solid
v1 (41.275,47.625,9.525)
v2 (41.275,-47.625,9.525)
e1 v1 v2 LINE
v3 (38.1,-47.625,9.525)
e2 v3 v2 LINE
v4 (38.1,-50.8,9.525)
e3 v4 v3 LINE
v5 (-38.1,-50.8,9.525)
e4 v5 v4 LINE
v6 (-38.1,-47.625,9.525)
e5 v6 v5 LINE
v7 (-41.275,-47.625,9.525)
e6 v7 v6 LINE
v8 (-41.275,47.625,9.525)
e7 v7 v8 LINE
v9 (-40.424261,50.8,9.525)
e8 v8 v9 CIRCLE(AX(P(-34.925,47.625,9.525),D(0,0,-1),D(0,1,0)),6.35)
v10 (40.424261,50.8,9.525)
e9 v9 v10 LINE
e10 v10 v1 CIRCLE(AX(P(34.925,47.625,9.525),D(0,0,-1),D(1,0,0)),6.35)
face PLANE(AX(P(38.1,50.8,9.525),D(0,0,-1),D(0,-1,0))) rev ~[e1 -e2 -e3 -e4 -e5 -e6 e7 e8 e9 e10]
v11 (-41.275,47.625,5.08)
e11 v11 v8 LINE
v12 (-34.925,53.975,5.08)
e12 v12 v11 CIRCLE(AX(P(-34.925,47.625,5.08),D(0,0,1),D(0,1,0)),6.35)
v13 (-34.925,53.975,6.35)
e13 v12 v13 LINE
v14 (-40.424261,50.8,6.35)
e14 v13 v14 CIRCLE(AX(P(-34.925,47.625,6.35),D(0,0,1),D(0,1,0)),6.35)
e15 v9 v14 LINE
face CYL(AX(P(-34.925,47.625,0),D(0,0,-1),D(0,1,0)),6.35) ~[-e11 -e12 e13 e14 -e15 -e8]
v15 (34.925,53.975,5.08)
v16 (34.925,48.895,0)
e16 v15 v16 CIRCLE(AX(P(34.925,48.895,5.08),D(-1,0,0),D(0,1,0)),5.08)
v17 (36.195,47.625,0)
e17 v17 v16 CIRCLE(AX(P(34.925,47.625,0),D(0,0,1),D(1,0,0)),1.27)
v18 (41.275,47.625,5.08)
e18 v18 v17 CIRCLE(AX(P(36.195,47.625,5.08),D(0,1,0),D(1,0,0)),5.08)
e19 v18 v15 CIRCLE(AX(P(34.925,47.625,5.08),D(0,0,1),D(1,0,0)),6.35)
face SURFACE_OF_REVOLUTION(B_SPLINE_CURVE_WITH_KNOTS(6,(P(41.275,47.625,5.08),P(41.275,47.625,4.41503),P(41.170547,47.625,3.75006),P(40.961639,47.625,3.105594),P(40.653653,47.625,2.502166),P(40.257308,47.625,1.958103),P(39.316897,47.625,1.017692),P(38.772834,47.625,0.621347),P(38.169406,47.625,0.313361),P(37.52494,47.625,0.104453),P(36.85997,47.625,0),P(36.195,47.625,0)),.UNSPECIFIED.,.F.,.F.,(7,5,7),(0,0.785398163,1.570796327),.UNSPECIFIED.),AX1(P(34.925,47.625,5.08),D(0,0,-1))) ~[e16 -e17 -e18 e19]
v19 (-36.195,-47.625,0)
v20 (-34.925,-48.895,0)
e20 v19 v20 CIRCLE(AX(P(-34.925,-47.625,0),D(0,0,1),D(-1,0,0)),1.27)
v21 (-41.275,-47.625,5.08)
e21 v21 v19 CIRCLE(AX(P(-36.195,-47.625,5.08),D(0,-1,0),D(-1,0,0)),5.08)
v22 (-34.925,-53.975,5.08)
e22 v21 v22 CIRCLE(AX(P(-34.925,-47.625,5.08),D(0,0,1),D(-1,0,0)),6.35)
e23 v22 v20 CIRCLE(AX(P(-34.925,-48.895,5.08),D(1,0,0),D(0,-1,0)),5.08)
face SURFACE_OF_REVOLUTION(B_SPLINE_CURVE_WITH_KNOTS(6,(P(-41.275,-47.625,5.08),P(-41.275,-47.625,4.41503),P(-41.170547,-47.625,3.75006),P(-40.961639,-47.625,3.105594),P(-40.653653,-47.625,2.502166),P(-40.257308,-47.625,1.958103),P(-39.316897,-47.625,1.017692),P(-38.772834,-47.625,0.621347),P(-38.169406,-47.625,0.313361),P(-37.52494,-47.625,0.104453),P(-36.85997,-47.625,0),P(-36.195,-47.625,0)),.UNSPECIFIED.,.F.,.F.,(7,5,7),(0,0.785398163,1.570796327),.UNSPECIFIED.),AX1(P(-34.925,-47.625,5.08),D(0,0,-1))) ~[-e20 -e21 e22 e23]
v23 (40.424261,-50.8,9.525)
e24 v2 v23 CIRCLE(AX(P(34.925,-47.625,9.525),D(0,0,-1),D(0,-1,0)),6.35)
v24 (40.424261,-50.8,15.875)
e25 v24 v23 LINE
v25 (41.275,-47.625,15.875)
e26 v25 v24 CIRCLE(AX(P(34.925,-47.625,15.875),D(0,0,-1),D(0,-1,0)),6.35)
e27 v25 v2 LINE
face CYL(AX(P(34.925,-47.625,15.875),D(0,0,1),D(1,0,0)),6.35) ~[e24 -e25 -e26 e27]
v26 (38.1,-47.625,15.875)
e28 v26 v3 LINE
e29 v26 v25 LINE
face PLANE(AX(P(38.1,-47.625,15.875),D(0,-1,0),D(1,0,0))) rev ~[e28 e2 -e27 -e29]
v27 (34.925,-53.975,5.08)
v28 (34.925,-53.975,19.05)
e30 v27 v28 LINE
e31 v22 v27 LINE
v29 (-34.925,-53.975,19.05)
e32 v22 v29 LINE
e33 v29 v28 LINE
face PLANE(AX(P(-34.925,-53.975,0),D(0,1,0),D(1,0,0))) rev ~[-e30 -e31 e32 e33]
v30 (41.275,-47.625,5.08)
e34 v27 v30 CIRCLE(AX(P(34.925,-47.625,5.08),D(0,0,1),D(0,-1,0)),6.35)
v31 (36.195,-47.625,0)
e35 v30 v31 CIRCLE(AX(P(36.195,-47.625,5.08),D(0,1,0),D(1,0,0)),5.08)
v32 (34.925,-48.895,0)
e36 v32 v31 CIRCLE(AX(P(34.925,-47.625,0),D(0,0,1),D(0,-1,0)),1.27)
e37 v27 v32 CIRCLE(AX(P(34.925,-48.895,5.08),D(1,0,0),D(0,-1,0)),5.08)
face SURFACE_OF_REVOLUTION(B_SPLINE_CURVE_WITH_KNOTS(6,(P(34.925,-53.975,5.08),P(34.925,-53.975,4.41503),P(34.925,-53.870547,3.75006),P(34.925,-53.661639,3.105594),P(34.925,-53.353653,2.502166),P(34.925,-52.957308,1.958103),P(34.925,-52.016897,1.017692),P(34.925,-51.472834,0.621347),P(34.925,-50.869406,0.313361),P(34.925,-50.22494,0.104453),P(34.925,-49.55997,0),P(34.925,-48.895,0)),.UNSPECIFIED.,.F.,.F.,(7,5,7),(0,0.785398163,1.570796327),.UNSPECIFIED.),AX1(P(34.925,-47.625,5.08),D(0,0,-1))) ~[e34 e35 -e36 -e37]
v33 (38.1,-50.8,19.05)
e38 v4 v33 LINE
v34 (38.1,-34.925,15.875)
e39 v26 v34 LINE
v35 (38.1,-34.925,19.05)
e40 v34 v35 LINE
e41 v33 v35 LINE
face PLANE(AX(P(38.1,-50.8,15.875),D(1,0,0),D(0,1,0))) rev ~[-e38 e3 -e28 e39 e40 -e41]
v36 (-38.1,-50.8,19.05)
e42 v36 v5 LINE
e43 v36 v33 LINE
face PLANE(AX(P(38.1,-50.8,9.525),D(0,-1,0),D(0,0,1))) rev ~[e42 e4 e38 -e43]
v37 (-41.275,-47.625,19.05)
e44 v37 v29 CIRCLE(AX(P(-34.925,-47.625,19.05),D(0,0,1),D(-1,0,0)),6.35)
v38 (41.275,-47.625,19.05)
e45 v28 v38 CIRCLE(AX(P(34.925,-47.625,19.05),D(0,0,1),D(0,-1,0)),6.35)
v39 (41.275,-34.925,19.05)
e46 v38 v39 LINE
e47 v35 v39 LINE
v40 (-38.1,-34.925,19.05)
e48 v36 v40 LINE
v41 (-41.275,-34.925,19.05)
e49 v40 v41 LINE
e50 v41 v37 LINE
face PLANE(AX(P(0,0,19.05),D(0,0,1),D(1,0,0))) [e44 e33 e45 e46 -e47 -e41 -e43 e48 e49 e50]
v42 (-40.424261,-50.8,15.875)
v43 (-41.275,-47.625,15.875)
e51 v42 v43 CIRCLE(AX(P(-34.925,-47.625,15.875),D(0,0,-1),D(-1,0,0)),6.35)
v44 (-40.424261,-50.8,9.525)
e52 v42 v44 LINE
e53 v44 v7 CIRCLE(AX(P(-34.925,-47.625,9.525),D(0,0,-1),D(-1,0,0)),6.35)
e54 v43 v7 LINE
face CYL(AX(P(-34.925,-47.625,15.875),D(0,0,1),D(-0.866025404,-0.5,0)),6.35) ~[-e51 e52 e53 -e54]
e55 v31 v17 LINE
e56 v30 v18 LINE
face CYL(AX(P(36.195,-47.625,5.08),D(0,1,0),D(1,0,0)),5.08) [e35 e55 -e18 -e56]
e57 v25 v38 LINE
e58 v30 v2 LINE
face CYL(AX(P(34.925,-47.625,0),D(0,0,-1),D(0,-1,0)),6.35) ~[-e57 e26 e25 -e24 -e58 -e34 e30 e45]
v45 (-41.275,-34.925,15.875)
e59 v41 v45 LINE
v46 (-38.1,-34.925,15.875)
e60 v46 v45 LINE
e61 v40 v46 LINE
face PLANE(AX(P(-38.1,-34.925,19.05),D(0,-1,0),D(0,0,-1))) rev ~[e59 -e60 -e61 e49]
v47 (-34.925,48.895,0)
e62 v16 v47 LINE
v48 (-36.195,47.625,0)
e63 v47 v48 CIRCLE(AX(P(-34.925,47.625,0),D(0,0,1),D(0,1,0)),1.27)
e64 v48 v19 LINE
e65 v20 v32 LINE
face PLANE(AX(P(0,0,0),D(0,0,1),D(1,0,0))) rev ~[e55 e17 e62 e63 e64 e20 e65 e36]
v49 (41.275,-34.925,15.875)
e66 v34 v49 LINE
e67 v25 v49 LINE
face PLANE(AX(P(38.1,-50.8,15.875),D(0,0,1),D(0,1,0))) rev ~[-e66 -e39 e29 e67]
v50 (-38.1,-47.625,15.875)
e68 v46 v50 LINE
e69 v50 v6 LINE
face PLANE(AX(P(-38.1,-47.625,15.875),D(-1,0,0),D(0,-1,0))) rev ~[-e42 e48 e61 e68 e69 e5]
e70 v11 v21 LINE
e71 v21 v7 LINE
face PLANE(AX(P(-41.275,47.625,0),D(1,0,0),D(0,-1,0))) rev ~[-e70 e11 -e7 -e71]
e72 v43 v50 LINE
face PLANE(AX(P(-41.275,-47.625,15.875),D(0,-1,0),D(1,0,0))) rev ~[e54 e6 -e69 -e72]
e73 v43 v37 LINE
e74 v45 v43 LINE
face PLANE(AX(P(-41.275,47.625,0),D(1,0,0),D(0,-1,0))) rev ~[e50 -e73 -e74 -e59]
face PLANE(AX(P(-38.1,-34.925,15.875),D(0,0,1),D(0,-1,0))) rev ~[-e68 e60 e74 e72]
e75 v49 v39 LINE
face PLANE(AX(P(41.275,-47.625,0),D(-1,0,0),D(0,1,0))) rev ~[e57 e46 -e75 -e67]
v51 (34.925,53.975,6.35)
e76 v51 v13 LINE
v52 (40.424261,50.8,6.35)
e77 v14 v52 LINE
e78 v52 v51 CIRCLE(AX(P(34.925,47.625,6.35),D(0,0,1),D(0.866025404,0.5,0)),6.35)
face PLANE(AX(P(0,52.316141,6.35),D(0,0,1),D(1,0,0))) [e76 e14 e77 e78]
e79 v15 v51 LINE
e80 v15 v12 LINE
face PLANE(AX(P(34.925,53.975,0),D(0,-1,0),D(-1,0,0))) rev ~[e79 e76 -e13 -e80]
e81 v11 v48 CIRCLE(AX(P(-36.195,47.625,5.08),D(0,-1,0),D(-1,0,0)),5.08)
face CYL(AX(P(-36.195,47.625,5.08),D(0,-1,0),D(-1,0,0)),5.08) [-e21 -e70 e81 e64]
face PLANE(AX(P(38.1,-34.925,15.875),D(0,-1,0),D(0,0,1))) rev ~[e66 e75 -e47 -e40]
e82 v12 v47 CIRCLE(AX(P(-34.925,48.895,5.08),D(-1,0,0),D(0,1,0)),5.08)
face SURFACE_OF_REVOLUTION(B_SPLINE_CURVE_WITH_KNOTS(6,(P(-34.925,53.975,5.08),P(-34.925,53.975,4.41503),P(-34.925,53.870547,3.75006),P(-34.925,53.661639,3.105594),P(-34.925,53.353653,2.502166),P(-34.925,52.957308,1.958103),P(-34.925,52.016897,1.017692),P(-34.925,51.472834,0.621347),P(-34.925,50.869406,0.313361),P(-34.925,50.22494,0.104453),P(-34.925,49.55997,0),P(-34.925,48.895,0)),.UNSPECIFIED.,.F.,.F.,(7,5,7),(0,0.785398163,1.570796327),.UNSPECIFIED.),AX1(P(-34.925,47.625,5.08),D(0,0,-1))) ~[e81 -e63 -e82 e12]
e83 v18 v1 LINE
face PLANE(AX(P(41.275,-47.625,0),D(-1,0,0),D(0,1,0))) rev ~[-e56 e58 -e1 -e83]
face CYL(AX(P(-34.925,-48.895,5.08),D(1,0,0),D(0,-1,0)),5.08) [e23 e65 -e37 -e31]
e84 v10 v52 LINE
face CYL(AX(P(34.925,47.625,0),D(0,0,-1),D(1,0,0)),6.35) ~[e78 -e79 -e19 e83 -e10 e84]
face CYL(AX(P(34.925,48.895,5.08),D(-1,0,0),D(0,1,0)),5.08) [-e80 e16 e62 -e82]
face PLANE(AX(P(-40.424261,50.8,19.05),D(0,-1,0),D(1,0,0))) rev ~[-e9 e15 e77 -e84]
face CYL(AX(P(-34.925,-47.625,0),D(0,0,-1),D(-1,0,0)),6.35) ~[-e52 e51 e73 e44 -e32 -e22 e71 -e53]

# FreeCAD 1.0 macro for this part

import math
import FreeCAD as App
import Part
import Sketcher

V = App.Vector
Q = App.Units.Quantity


def edges_at(feature, points):
    """Names of the edges that pass closest to the given points."""
    edges = feature.Shape.Edges
    near = lambda p: min(range(len(edges)), key=lambda i: edges[i].distToShape(Part.Vertex(*p))[0])
    return sorted({f"Edge{near(p) + 1}" for p in points})

doc = App.newDocument("Part")
body = doc.addObject("PartDesign::Body", "Body")

# Sketch on XY plane
sketch1 = body.newObject("Sketcher::SketchObject", "Sketch")
sketch1.AttachmentSupport = (doc.getObject("XY_Plane"), [""])
sketch1.MapMode = "FlatFace"
sketch1.addGeometry(Part.ArcOfCircle(Part.Circle(V(35, 48, 0), V(0, 0, 1), 6), math.radians(0), math.radians(90)), False)
sketch1.addGeometry(Part.LineSegment(V(35, 54, 0), V(-35, 54, 0)), False)
sketch1.addGeometry(Part.ArcOfCircle(Part.Circle(V(-35, 48, 0), V(0, 0, 1), 6), math.radians(90), math.radians(180)), False)
sketch1.addGeometry(Part.LineSegment(V(-41, 48, 0), V(-41, -48, 0)), False)
sketch1.addGeometry(Part.ArcOfCircle(Part.Circle(V(-35, -48, 0), V(0, 0, 1), 6), math.radians(180), math.radians(270)), False)
sketch1.addGeometry(Part.LineSegment(V(-35, -54, 0), V(35, -54, 0)), False)
sketch1.addGeometry(Part.ArcOfCircle(Part.Circle(V(35, -48, 0), V(0, 0, 1), 6), math.radians(-90), math.radians(0)), False)
sketch1.addGeometry(Part.LineSegment(V(41, -48, 0), V(41, 48, 0)), False)
sketch1.addConstraint(Sketcher.Constraint("Tangent", 0, 2, 1, 1))
sketch1.addConstraint(Sketcher.Constraint("Tangent", 1, 2, 2, 1))
sketch1.addConstraint(Sketcher.Constraint("Tangent", 2, 2, 3, 1))
sketch1.addConstraint(Sketcher.Constraint("Tangent", 3, 2, 4, 1))
sketch1.addConstraint(Sketcher.Constraint("Tangent", 4, 2, 5, 1))
sketch1.addConstraint(Sketcher.Constraint("Tangent", 5, 2, 6, 1))
sketch1.addConstraint(Sketcher.Constraint("Tangent", 6, 2, 7, 1))
sketch1.addConstraint(Sketcher.Constraint("Tangent", 7, 2, 0, 1))
sketch1.addConstraint(Sketcher.Constraint("Horizontal", 1))
sketch1.addConstraint(Sketcher.Constraint("Vertical", 3))
sketch1.addConstraint(Sketcher.Constraint("Horizontal", 5))
sketch1.addConstraint(Sketcher.Constraint("Vertical", 7))
sketch1.addConstraint(Sketcher.Constraint("Equal", 0, 2))
sketch1.addConstraint(Sketcher.Constraint("Equal", 2, 4))
sketch1.addConstraint(Sketcher.Constraint("Equal", 4, 6))
sketch1.addConstraint(Sketcher.Constraint("Symmetric", 0, 3, 4, 3, -1, 1))
sketch1.addConstraint(Sketcher.Constraint("Radius", 0, Q("0.25 in")))
sketch1.addConstraint(Sketcher.Constraint("DistanceY", 6, 3, 0, 2, Q("4 in")))
sketch1.addConstraint(Sketcher.Constraint("DistanceX", 2, 2, 0, 3, Q("3 in")))
pad1 = body.newObject("PartDesign::Pad", "Pad")
pad1.Profile = sketch1
pad1.Length = Q("0.75 in")
doc.recompute()

fillet = body.newObject("PartDesign::Fillet", "Fillet")
fillet.Base = (pad1, edges_at(pad1, [(0, -53.975, 0)]))
fillet.Radius = Q("0.2 in")

# Sketch on XY plane
sketch2 = body.newObject("Sketcher::SketchObject", "Sketch001")
sketch2.AttachmentSupport = (doc.getObject("XY_Plane"), [""])
sketch2.MapMode = "FlatFace"
sketch2.AttachmentOffset = App.Placement(V(0, 0, 0.75 * 25.4), App.Rotation())
sketch2.addGeometry(Part.LineSegment(V(-38, 51, 0), V(-38, -51, 0)), False)
sketch2.addGeometry(Part.LineSegment(V(-38, -51, 0), V(38, -51, 0)), False)
sketch2.addGeometry(Part.LineSegment(V(38, -51, 0), V(38, 51, 0)), False)
sketch2.addGeometry(Part.LineSegment(V(38, 51, 0), V(-38, 51, 0)), False)
sketch2.addConstraint(Sketcher.Constraint("Coincident", 0, 2, 1, 1))
sketch2.addConstraint(Sketcher.Constraint("Coincident", 1, 2, 2, 1))
sketch2.addConstraint(Sketcher.Constraint("Coincident", 2, 2, 3, 1))
sketch2.addConstraint(Sketcher.Constraint("Coincident", 3, 2, 0, 1))
sketch2.addConstraint(Sketcher.Constraint("Vertical", 0))
sketch2.addConstraint(Sketcher.Constraint("Horizontal", 1))
sketch2.addConstraint(Sketcher.Constraint("Vertical", 2))
sketch2.addConstraint(Sketcher.Constraint("Horizontal", 3))
sketch2.addConstraint(Sketcher.Constraint("Symmetric", 0, 2, 2, 2, -1, 1))
sketch2.addConstraint(Sketcher.Constraint("DistanceX", 1, 1, 1, 2, Q("3 in")))
sketch2.addConstraint(Sketcher.Constraint("DistanceY", 0, 2, 0, 1, Q("4 in")))
pocket1 = body.newObject("PartDesign::Pocket", "Pocket")
pocket1.Profile = sketch2
pocket1.Length = Q("0.375 in")

# Sketch on XY plane
sketch3 = body.newObject("Sketcher::SketchObject", "Sketch002")
sketch3.AttachmentSupport = (doc.getObject("XY_Plane"), [""])
sketch3.MapMode = "FlatFace"
sketch3.AttachmentOffset = App.Placement(V(0, 0, 0.75 * 25.4), App.Rotation())
sketch3.addGeometry(Part.ArcOfCircle(Part.Circle(V(-35, 48, 0), V(0, 0, 1), 6), math.radians(90), math.radians(150)), False)
sketch3.addGeometry(Part.LineSegment(V(-40, 51, 0), V(40, 51, 0)), False)
sketch3.addGeometry(Part.ArcOfCircle(Part.Circle(V(35, 48, 0), V(0, 0, 1), 6), math.radians(30), math.radians(90)), False)
sketch3.addGeometry(Part.LineSegment(V(35, 54, 0), V(-35, 54, 0)), False)
sketch3.addConstraint(Sketcher.Constraint("Coincident", 0, 2, 1, 1))
sketch3.addConstraint(Sketcher.Constraint("Coincident", 1, 2, 2, 1))
sketch3.addConstraint(Sketcher.Constraint("Tangent", 2, 2, 3, 1))
sketch3.addConstraint(Sketcher.Constraint("Tangent", 3, 2, 0, 1))
sketch3.addConstraint(Sketcher.Constraint("Horizontal", 1))
sketch3.addConstraint(Sketcher.Constraint("Horizontal", 3))
sketch3.addConstraint(Sketcher.Constraint("Equal", 0, 2))
sketch3.addConstraint(Sketcher.Constraint("Radius", 0, Q("0.25 in")))
sketch3.addConstraint(Sketcher.Constraint("DistanceY", -1, 1, 0, 2, Q("2 in")))
sketch3.addConstraint(Sketcher.Constraint("DistanceX", 3, 2, 3, 1, Q("2.75 in")))
sketch3.addConstraint(Sketcher.Constraint("DistanceX", 0, 3, -1, 1, Q("1.375 in")))
sketch3.addConstraint(Sketcher.Constraint("DistanceY", -1, 1, 0, 3, Q("1.875 in")))
pocket2 = body.newObject("PartDesign::Pocket", "Pocket001")
pocket2.Profile = sketch3
pocket2.Length = Q("0.5 in")

# Sketch on YZ plane
sketch4 = body.newObject("Sketcher::SketchObject", "Sketch003")
sketch4.AttachmentSupport = (doc.getObject("YZ_Plane"), [""])
sketch4.MapMode = "FlatFace"
sketch4.AttachmentOffset = App.Placement(V(0, 0, 1.5 * 25.4), App.Rotation())
sketch4.addGeometry(Part.LineSegment(V(-34.9, 15.9, 0), V(-34.9, 19.1, 0)), False)
sketch4.addGeometry(Part.LineSegment(V(-34.9, 19.1, 0), V(50.8, 19.1, 0)), False)
sketch4.addGeometry(Part.LineSegment(V(50.8, 19.1, 0), V(50.8, 9.5, 0)), False)
sketch4.addGeometry(Part.LineSegment(V(50.8, 9.5, 0), V(-50.8, 9.5, 0)), False)
sketch4.addGeometry(Part.LineSegment(V(-50.8, 9.5, 0), V(-50.8, 15.9, 0)), False)
sketch4.addGeometry(Part.LineSegment(V(-50.8, 15.9, 0), V(-34.9, 15.9, 0)), False)
sketch4.addConstraint(Sketcher.Constraint("Coincident", 0, 2, 1, 1))
sketch4.addConstraint(Sketcher.Constraint("Coincident", 1, 2, 2, 1))
sketch4.addConstraint(Sketcher.Constraint("Coincident", 2, 2, 3, 1))
sketch4.addConstraint(Sketcher.Constraint("Coincident", 3, 2, 4, 1))
sketch4.addConstraint(Sketcher.Constraint("Coincident", 4, 2, 5, 1))
sketch4.addConstraint(Sketcher.Constraint("Coincident", 5, 2, 0, 1))
sketch4.addConstraint(Sketcher.Constraint("Vertical", 0))
sketch4.addConstraint(Sketcher.Constraint("Horizontal", 1))
sketch4.addConstraint(Sketcher.Constraint("Vertical", 2))
sketch4.addConstraint(Sketcher.Constraint("Horizontal", 3))
sketch4.addConstraint(Sketcher.Constraint("Vertical", 4))
sketch4.addConstraint(Sketcher.Constraint("Horizontal", 5))
sketch4.addConstraint(Sketcher.Constraint("DistanceX", 3, 2, 3, 1, Q("4 in")))
sketch4.addConstraint(Sketcher.Constraint("DistanceX", -1, 1, 1, 2, Q("2 in")))
sketch4.addConstraint(Sketcher.Constraint("DistanceY", 4, 1, 4, 2, Q("0.25 in")))
sketch4.addConstraint(Sketcher.Constraint("DistanceX", 1, 1, 1, 2, Q("3.375 in")))
sketch4.addConstraint(Sketcher.Constraint("DistanceY", 0, 1, 0, 2, Q("0.125 in")))
sketch4.addConstraint(Sketcher.Constraint("DistanceY", -1, 1, 0, 2, Q("0.75 in")))
pocket3 = body.newObject("PartDesign::Pocket", "Pocket002")
pocket3.Profile = sketch4
pocket3.Length = Q("1 in")
pocket3.Reversed = True

# Sketch on YZ plane
sketch5 = body.newObject("Sketcher::SketchObject", "Sketch004")
sketch5.AttachmentSupport = (doc.getObject("YZ_Plane"), [""])
sketch5.MapMode = "FlatFace"
sketch5.AttachmentOffset = App.Placement(V(0, 0, -1.5 * 25.4), App.Rotation())
sketch5.addGeometry(Part.LineSegment(V(50.8, 19.1, 0), V(-34.9, 19.1, 0)), False)
sketch5.addGeometry(Part.LineSegment(V(-34.9, 19.1, 0), V(-34.9, 15.9, 0)), False)
sketch5.addGeometry(Part.LineSegment(V(-34.9, 15.9, 0), V(-50.8, 15.9, 0)), False)
sketch5.addGeometry(Part.LineSegment(V(-50.8, 15.9, 0), V(-50.8, 9.5, 0)), False)
sketch5.addGeometry(Part.LineSegment(V(-50.8, 9.5, 0), V(50.8, 9.5, 0)), False)
sketch5.addGeometry(Part.LineSegment(V(50.8, 9.5, 0), V(50.8, 19.1, 0)), False)
sketch5.addConstraint(Sketcher.Constraint("Coincident", 0, 2, 1, 1))
sketch5.addConstraint(Sketcher.Constraint("Coincident", 1, 2, 2, 1))
sketch5.addConstraint(Sketcher.Constraint("Coincident", 2, 2, 3, 1))
sketch5.addConstraint(Sketcher.Constraint("Coincident", 3, 2, 4, 1))
sketch5.addConstraint(Sketcher.Constraint("Coincident", 4, 2, 5, 1))
sketch5.addConstraint(Sketcher.Constraint("Coincident", 5, 2, 0, 1))
sketch5.addConstraint(Sketcher.Constraint("Horizontal", 0))
sketch5.addConstraint(Sketcher.Constraint("Vertical", 1))
sketch5.addConstraint(Sketcher.Constraint("Horizontal", 2))
sketch5.addConstraint(Sketcher.Constraint("Vertical", 3))
sketch5.addConstraint(Sketcher.Constraint("Horizontal", 4))
sketch5.addConstraint(Sketcher.Constraint("Vertical", 5))
sketch5.addConstraint(Sketcher.Constraint("DistanceX", 4, 1, 4, 2, Q("4 in")))
sketch5.addConstraint(Sketcher.Constraint("DistanceX", 2, 2, -1, 1, Q("2 in")))
sketch5.addConstraint(Sketcher.Constraint("DistanceY", 3, 2, 3, 1, Q("0.25 in")))
sketch5.addConstraint(Sketcher.Constraint("DistanceX", 0, 2, 0, 1, Q("3.375 in")))
sketch5.addConstraint(Sketcher.Constraint("DistanceY", 1, 2, 1, 1, Q("0.125 in")))
sketch5.addConstraint(Sketcher.Constraint("DistanceY", -1, 1, 0, 2, Q("0.75 in")))
pocket4 = body.newObject("PartDesign::Pocket", "Pocket003")
pocket4.Profile = sketch5
pocket4.Length = Q("0.125 in")

# Sketch on XY plane
sketch6 = body.newObject("Sketcher::SketchObject", "Sketch005")
sketch6.AttachmentSupport = (doc.getObject("XY_Plane"), [""])
sketch6.MapMode = "FlatFace"
sketch6.AttachmentOffset = App.Placement(V(0, 0, 0.625 * 25.4), App.Rotation())
sketch6.addGeometry(Part.LineSegment(V(38.1, -47.6, 0), V(41.3, -47.6, 0)), False)
sketch6.addGeometry(Part.ArcOfCircle(Part.Circle(V(34.9, -47.6, 0), V(0, 0, 1), 6.4), math.radians(-30), math.radians(0)), False)
sketch6.addGeometry(Part.LineSegment(V(40.4, -50.8, 0), V(38.1, -50.8, 0)), False)
sketch6.addGeometry(Part.LineSegment(V(38.1, -50.8, 0), V(38.1, -47.6, 0)), False)
sketch6.addConstraint(Sketcher.Constraint("Coincident", 0, 2, 1, 2))
sketch6.addConstraint(Sketcher.Constraint("Coincident", 1, 1, 2, 1))
sketch6.addConstraint(Sketcher.Constraint("Coincident", 2, 2, 3, 1))
sketch6.addConstraint(Sketcher.Constraint("Coincident", 3, 2, 0, 1))
sketch6.addConstraint(Sketcher.Constraint("Horizontal", 0))
sketch6.addConstraint(Sketcher.Constraint("Horizontal", 2))
sketch6.addConstraint(Sketcher.Constraint("Vertical", 3))
sketch6.addConstraint(Sketcher.Constraint("Horizontal", 1, 3, 0, 2))
sketch6.addConstraint(Sketcher.Constraint("Equal", 0, 3))
sketch6.addConstraint(Sketcher.Constraint("Radius", 1, Q("0.25 in")))
sketch6.addConstraint(Sketcher.Constraint("DistanceY", 1, 1, -1, 1, Q("2 in")))
sketch6.addConstraint(Sketcher.Constraint("DistanceX", -1, 1, 2, 2, Q("1.5 in")))
sketch6.addConstraint(Sketcher.Constraint("DistanceX", 0, 1, 0, 2, Q("0.125 in")))
pad2 = body.newObject("PartDesign::Pad", "Pad001")
pad2.Profile = sketch6
pad2.Length = Q("0.25 in")
pad2.Reversed = True

# Sketch on XY plane
sketch7 = body.newObject("Sketcher::SketchObject", "Sketch006")
sketch7.AttachmentSupport = (doc.getObject("XY_Plane"), [""])
sketch7.MapMode = "FlatFace"
sketch7.AttachmentOffset = App.Placement(V(0, 0, 0.625 * 25.4), App.Rotation())
sketch7.addGeometry(Part.ArcOfCircle(Part.Circle(V(-34.9, -47.6, 0), V(0, 0, 1), 6.4), math.radians(180), math.radians(210)), False)
sketch7.addGeometry(Part.LineSegment(V(-41.3, -47.6, 0), V(-38.1, -47.6, 0)), False)
sketch7.addGeometry(Part.LineSegment(V(-38.1, -47.6, 0), V(-38.1, -50.8, 0)), False)
sketch7.addGeometry(Part.LineSegment(V(-38.1, -50.8, 0), V(-40.4, -50.8, 0)), False)
sketch7.addConstraint(Sketcher.Constraint("Coincident", 0, 1, 1, 1))
sketch7.addConstraint(Sketcher.Constraint("Coincident", 1, 2, 2, 1))
sketch7.addConstraint(Sketcher.Constraint("Coincident", 2, 2, 3, 1))
sketch7.addConstraint(Sketcher.Constraint("Coincident", 3, 2, 0, 2))
sketch7.addConstraint(Sketcher.Constraint("Horizontal", 1))
sketch7.addConstraint(Sketcher.Constraint("Vertical", 2))
sketch7.addConstraint(Sketcher.Constraint("Horizontal", 3))
sketch7.addConstraint(Sketcher.Constraint("Equal", 1, 2))
sketch7.addConstraint(Sketcher.Constraint("Radius", 0, Q("0.25 in")))
sketch7.addConstraint(Sketcher.Constraint("DistanceY", 2, 2, -1, 1, Q("2 in")))
sketch7.addConstraint(Sketcher.Constraint("DistanceX", 1, 2, -1, 1, Q("1.5 in")))
sketch7.addConstraint(Sketcher.Constraint("DistanceX", 1, 1, 1, 2, Q("0.125 in")))
sketch7.addConstraint(Sketcher.Constraint("DistanceY", 0, 3, -1, 1, Q("1.875 in")))
pad3 = body.newObject("PartDesign::Pad", "Pad002")
pad3.Profile = sketch7
pad3.Length = Q("0.25 in")
pad3.Reversed = True

doc.recompute()
